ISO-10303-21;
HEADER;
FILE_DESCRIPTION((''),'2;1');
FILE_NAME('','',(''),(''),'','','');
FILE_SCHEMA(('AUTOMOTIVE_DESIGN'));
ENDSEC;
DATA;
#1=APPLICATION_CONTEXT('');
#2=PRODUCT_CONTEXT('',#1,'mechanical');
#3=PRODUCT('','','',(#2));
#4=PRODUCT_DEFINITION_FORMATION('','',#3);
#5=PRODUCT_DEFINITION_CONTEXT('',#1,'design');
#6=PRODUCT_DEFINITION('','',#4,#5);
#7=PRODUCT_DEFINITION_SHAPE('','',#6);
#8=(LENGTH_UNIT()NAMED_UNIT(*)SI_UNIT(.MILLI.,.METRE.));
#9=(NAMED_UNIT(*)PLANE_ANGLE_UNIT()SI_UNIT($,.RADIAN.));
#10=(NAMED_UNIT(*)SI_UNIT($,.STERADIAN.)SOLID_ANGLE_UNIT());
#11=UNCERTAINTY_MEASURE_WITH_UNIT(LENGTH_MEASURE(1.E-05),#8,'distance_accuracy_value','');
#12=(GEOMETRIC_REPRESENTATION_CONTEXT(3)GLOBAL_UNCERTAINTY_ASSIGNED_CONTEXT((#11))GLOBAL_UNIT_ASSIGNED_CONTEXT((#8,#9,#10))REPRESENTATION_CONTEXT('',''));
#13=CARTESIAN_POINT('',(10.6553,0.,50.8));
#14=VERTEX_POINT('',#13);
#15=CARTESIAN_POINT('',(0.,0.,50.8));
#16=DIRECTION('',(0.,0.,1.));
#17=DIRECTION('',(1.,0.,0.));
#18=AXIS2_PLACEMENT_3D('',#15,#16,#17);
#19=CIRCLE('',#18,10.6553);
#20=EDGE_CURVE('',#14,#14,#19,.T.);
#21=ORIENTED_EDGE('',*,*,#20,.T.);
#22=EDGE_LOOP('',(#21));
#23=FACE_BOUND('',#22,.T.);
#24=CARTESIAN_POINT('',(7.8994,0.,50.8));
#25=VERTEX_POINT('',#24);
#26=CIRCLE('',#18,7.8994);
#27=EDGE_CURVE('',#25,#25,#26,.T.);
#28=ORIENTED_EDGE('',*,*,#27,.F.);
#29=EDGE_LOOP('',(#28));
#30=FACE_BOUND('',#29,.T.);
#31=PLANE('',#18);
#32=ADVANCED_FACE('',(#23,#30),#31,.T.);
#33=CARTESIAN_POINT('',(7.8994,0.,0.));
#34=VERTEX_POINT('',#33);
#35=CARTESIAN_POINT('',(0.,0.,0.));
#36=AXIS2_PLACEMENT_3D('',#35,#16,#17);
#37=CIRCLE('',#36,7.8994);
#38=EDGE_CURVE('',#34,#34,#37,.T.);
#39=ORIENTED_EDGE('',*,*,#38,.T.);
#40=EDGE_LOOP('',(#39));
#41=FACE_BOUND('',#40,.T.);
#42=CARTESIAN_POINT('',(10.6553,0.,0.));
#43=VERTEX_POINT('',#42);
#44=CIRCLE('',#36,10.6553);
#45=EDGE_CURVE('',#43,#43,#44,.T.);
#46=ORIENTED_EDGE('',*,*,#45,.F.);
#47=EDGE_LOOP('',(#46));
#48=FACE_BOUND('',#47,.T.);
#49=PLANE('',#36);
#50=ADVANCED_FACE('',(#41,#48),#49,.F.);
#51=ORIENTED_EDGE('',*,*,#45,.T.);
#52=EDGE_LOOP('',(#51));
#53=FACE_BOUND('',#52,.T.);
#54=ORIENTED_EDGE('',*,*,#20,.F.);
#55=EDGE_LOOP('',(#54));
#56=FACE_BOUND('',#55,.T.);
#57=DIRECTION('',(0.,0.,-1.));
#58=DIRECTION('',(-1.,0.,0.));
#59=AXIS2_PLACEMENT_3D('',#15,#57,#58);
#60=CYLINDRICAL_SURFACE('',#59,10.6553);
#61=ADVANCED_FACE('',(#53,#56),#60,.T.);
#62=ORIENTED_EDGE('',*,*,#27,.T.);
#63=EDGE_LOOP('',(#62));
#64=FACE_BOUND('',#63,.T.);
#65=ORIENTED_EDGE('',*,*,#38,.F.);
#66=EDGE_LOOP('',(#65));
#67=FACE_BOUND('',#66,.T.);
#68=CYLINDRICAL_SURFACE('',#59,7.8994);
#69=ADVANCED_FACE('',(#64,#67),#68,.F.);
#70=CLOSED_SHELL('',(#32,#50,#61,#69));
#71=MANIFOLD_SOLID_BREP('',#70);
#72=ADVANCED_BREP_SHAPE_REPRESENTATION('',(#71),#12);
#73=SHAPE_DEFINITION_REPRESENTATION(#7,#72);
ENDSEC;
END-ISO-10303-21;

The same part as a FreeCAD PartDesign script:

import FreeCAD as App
import Part
import Sketcher

V = App.Vector
Q = App.Units.Quantity

doc = App.newDocument("Part")
body = doc.addObject("PartDesign::Body", "Body")

# Sketch on XY plane
sketch1 = body.newObject("Sketcher::SketchObject", "Sketch")
sketch1.AttachmentSupport = (doc.getObject("XY_Plane"), [""])
sketch1.MapMode = "FlatFace"
sketch1.addGeometry([
    Part.Circle(V(0, 0, 0), V(0, 0, 1), 11),
    Part.Circle(V(0, 0, 0), V(0, 0, 1), 8),
], False)
sketch1.addConstraint([
    Sketcher.Constraint("Coincident", 0, 3, -1, 1),
    Sketcher.Constraint("Coincident", 1, 3, -1, 1),
    Sketcher.Constraint("Diameter", 0, Q("0.839 in")),
    Sketcher.Constraint("Diameter", 1, Q("0.622 in")),
])
pad1 = body.newObject("PartDesign::Pad", "Pad")
pad1.Profile = sketch1
pad1.Length = Q("2 in")

doc.recompute()
